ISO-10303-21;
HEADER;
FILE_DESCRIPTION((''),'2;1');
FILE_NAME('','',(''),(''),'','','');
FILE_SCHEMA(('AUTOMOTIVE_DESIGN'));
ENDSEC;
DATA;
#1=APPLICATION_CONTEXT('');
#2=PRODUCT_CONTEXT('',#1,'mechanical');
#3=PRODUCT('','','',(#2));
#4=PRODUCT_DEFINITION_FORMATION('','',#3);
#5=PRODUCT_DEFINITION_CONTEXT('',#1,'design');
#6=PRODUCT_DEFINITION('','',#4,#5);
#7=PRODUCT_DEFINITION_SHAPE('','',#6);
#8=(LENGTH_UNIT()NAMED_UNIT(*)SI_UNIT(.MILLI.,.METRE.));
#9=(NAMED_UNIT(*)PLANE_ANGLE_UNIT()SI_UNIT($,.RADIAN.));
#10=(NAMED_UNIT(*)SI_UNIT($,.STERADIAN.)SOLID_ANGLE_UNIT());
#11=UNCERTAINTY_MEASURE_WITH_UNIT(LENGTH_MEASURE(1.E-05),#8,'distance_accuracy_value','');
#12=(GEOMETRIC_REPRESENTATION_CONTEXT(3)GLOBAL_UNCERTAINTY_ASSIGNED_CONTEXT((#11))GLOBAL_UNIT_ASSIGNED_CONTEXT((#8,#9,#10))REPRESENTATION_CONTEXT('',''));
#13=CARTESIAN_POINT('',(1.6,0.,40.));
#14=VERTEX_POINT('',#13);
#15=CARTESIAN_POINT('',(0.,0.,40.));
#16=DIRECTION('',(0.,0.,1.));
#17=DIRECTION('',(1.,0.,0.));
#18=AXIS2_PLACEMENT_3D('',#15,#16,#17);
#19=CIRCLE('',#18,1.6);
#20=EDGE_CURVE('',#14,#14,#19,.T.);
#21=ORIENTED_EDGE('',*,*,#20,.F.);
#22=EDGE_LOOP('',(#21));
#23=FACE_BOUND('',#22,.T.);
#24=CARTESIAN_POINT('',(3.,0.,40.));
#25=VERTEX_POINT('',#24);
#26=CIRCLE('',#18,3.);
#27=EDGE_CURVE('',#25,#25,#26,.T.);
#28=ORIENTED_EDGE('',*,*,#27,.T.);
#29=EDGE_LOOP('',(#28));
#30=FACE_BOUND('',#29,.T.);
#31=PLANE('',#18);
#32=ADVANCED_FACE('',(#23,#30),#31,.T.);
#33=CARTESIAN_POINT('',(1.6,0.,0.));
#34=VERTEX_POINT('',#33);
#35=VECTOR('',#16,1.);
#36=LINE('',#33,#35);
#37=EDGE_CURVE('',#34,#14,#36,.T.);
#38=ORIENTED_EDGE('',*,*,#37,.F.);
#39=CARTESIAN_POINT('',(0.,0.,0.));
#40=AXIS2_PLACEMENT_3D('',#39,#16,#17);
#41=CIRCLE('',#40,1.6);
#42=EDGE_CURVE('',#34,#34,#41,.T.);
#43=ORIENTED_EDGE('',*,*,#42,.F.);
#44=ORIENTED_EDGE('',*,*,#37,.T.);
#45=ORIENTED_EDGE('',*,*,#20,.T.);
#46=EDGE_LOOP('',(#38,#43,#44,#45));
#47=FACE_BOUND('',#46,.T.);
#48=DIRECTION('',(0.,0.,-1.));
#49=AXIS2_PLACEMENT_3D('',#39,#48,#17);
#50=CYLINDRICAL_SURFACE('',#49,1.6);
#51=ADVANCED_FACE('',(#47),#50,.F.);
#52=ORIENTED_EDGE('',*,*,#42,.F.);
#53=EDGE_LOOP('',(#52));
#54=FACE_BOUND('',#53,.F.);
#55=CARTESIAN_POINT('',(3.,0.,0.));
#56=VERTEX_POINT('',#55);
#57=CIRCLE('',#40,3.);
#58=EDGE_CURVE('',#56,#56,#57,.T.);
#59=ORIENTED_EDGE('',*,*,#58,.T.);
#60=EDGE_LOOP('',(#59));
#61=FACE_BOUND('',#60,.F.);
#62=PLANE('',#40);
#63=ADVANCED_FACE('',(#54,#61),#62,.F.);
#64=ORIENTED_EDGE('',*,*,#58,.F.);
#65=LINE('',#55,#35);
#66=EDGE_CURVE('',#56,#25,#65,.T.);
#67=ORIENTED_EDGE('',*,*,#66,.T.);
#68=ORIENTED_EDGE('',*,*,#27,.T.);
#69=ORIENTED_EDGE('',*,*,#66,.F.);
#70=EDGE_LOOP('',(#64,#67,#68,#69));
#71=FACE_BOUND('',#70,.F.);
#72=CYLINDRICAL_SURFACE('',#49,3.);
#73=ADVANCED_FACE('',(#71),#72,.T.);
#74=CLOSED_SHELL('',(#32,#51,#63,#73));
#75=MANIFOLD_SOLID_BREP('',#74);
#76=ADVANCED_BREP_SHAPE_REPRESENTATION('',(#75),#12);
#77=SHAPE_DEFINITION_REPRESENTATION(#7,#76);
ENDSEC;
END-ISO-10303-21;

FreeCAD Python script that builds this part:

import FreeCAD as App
import Part
import Sketcher

V = App.Vector

doc = App.newDocument("Part")
body = doc.addObject("PartDesign::Body", "Body")

sketch1 = body.newObject("Sketcher::SketchObject", "Sketch")
sketch1.AttachmentSupport = (doc.getObject("XY_Plane"), [""])
sketch1.MapMode = "FlatFace"
sketch1.addGeometry([
    Part.Circle(V(0, 0, 0), V(0, 0, 1), 3),
    Part.Circle(V(0, 0, 0), V(0, 0, 1), 1.6),
], False)
sketch1.addConstraint([
    Sketcher.Constraint("Coincident", 0, 3, -1, 1),
    Sketcher.Constraint("Coincident", 1, 3, -1, 1),
    Sketcher.Constraint("Diameter", 0, 6.0),
    Sketcher.Constraint("Diameter", 1, 3.2),
])
pad1 = body.newObject("PartDesign::Pad", "Pad")
pad1.Profile = sketch1
pad1.Length = 40

doc.recompute()
